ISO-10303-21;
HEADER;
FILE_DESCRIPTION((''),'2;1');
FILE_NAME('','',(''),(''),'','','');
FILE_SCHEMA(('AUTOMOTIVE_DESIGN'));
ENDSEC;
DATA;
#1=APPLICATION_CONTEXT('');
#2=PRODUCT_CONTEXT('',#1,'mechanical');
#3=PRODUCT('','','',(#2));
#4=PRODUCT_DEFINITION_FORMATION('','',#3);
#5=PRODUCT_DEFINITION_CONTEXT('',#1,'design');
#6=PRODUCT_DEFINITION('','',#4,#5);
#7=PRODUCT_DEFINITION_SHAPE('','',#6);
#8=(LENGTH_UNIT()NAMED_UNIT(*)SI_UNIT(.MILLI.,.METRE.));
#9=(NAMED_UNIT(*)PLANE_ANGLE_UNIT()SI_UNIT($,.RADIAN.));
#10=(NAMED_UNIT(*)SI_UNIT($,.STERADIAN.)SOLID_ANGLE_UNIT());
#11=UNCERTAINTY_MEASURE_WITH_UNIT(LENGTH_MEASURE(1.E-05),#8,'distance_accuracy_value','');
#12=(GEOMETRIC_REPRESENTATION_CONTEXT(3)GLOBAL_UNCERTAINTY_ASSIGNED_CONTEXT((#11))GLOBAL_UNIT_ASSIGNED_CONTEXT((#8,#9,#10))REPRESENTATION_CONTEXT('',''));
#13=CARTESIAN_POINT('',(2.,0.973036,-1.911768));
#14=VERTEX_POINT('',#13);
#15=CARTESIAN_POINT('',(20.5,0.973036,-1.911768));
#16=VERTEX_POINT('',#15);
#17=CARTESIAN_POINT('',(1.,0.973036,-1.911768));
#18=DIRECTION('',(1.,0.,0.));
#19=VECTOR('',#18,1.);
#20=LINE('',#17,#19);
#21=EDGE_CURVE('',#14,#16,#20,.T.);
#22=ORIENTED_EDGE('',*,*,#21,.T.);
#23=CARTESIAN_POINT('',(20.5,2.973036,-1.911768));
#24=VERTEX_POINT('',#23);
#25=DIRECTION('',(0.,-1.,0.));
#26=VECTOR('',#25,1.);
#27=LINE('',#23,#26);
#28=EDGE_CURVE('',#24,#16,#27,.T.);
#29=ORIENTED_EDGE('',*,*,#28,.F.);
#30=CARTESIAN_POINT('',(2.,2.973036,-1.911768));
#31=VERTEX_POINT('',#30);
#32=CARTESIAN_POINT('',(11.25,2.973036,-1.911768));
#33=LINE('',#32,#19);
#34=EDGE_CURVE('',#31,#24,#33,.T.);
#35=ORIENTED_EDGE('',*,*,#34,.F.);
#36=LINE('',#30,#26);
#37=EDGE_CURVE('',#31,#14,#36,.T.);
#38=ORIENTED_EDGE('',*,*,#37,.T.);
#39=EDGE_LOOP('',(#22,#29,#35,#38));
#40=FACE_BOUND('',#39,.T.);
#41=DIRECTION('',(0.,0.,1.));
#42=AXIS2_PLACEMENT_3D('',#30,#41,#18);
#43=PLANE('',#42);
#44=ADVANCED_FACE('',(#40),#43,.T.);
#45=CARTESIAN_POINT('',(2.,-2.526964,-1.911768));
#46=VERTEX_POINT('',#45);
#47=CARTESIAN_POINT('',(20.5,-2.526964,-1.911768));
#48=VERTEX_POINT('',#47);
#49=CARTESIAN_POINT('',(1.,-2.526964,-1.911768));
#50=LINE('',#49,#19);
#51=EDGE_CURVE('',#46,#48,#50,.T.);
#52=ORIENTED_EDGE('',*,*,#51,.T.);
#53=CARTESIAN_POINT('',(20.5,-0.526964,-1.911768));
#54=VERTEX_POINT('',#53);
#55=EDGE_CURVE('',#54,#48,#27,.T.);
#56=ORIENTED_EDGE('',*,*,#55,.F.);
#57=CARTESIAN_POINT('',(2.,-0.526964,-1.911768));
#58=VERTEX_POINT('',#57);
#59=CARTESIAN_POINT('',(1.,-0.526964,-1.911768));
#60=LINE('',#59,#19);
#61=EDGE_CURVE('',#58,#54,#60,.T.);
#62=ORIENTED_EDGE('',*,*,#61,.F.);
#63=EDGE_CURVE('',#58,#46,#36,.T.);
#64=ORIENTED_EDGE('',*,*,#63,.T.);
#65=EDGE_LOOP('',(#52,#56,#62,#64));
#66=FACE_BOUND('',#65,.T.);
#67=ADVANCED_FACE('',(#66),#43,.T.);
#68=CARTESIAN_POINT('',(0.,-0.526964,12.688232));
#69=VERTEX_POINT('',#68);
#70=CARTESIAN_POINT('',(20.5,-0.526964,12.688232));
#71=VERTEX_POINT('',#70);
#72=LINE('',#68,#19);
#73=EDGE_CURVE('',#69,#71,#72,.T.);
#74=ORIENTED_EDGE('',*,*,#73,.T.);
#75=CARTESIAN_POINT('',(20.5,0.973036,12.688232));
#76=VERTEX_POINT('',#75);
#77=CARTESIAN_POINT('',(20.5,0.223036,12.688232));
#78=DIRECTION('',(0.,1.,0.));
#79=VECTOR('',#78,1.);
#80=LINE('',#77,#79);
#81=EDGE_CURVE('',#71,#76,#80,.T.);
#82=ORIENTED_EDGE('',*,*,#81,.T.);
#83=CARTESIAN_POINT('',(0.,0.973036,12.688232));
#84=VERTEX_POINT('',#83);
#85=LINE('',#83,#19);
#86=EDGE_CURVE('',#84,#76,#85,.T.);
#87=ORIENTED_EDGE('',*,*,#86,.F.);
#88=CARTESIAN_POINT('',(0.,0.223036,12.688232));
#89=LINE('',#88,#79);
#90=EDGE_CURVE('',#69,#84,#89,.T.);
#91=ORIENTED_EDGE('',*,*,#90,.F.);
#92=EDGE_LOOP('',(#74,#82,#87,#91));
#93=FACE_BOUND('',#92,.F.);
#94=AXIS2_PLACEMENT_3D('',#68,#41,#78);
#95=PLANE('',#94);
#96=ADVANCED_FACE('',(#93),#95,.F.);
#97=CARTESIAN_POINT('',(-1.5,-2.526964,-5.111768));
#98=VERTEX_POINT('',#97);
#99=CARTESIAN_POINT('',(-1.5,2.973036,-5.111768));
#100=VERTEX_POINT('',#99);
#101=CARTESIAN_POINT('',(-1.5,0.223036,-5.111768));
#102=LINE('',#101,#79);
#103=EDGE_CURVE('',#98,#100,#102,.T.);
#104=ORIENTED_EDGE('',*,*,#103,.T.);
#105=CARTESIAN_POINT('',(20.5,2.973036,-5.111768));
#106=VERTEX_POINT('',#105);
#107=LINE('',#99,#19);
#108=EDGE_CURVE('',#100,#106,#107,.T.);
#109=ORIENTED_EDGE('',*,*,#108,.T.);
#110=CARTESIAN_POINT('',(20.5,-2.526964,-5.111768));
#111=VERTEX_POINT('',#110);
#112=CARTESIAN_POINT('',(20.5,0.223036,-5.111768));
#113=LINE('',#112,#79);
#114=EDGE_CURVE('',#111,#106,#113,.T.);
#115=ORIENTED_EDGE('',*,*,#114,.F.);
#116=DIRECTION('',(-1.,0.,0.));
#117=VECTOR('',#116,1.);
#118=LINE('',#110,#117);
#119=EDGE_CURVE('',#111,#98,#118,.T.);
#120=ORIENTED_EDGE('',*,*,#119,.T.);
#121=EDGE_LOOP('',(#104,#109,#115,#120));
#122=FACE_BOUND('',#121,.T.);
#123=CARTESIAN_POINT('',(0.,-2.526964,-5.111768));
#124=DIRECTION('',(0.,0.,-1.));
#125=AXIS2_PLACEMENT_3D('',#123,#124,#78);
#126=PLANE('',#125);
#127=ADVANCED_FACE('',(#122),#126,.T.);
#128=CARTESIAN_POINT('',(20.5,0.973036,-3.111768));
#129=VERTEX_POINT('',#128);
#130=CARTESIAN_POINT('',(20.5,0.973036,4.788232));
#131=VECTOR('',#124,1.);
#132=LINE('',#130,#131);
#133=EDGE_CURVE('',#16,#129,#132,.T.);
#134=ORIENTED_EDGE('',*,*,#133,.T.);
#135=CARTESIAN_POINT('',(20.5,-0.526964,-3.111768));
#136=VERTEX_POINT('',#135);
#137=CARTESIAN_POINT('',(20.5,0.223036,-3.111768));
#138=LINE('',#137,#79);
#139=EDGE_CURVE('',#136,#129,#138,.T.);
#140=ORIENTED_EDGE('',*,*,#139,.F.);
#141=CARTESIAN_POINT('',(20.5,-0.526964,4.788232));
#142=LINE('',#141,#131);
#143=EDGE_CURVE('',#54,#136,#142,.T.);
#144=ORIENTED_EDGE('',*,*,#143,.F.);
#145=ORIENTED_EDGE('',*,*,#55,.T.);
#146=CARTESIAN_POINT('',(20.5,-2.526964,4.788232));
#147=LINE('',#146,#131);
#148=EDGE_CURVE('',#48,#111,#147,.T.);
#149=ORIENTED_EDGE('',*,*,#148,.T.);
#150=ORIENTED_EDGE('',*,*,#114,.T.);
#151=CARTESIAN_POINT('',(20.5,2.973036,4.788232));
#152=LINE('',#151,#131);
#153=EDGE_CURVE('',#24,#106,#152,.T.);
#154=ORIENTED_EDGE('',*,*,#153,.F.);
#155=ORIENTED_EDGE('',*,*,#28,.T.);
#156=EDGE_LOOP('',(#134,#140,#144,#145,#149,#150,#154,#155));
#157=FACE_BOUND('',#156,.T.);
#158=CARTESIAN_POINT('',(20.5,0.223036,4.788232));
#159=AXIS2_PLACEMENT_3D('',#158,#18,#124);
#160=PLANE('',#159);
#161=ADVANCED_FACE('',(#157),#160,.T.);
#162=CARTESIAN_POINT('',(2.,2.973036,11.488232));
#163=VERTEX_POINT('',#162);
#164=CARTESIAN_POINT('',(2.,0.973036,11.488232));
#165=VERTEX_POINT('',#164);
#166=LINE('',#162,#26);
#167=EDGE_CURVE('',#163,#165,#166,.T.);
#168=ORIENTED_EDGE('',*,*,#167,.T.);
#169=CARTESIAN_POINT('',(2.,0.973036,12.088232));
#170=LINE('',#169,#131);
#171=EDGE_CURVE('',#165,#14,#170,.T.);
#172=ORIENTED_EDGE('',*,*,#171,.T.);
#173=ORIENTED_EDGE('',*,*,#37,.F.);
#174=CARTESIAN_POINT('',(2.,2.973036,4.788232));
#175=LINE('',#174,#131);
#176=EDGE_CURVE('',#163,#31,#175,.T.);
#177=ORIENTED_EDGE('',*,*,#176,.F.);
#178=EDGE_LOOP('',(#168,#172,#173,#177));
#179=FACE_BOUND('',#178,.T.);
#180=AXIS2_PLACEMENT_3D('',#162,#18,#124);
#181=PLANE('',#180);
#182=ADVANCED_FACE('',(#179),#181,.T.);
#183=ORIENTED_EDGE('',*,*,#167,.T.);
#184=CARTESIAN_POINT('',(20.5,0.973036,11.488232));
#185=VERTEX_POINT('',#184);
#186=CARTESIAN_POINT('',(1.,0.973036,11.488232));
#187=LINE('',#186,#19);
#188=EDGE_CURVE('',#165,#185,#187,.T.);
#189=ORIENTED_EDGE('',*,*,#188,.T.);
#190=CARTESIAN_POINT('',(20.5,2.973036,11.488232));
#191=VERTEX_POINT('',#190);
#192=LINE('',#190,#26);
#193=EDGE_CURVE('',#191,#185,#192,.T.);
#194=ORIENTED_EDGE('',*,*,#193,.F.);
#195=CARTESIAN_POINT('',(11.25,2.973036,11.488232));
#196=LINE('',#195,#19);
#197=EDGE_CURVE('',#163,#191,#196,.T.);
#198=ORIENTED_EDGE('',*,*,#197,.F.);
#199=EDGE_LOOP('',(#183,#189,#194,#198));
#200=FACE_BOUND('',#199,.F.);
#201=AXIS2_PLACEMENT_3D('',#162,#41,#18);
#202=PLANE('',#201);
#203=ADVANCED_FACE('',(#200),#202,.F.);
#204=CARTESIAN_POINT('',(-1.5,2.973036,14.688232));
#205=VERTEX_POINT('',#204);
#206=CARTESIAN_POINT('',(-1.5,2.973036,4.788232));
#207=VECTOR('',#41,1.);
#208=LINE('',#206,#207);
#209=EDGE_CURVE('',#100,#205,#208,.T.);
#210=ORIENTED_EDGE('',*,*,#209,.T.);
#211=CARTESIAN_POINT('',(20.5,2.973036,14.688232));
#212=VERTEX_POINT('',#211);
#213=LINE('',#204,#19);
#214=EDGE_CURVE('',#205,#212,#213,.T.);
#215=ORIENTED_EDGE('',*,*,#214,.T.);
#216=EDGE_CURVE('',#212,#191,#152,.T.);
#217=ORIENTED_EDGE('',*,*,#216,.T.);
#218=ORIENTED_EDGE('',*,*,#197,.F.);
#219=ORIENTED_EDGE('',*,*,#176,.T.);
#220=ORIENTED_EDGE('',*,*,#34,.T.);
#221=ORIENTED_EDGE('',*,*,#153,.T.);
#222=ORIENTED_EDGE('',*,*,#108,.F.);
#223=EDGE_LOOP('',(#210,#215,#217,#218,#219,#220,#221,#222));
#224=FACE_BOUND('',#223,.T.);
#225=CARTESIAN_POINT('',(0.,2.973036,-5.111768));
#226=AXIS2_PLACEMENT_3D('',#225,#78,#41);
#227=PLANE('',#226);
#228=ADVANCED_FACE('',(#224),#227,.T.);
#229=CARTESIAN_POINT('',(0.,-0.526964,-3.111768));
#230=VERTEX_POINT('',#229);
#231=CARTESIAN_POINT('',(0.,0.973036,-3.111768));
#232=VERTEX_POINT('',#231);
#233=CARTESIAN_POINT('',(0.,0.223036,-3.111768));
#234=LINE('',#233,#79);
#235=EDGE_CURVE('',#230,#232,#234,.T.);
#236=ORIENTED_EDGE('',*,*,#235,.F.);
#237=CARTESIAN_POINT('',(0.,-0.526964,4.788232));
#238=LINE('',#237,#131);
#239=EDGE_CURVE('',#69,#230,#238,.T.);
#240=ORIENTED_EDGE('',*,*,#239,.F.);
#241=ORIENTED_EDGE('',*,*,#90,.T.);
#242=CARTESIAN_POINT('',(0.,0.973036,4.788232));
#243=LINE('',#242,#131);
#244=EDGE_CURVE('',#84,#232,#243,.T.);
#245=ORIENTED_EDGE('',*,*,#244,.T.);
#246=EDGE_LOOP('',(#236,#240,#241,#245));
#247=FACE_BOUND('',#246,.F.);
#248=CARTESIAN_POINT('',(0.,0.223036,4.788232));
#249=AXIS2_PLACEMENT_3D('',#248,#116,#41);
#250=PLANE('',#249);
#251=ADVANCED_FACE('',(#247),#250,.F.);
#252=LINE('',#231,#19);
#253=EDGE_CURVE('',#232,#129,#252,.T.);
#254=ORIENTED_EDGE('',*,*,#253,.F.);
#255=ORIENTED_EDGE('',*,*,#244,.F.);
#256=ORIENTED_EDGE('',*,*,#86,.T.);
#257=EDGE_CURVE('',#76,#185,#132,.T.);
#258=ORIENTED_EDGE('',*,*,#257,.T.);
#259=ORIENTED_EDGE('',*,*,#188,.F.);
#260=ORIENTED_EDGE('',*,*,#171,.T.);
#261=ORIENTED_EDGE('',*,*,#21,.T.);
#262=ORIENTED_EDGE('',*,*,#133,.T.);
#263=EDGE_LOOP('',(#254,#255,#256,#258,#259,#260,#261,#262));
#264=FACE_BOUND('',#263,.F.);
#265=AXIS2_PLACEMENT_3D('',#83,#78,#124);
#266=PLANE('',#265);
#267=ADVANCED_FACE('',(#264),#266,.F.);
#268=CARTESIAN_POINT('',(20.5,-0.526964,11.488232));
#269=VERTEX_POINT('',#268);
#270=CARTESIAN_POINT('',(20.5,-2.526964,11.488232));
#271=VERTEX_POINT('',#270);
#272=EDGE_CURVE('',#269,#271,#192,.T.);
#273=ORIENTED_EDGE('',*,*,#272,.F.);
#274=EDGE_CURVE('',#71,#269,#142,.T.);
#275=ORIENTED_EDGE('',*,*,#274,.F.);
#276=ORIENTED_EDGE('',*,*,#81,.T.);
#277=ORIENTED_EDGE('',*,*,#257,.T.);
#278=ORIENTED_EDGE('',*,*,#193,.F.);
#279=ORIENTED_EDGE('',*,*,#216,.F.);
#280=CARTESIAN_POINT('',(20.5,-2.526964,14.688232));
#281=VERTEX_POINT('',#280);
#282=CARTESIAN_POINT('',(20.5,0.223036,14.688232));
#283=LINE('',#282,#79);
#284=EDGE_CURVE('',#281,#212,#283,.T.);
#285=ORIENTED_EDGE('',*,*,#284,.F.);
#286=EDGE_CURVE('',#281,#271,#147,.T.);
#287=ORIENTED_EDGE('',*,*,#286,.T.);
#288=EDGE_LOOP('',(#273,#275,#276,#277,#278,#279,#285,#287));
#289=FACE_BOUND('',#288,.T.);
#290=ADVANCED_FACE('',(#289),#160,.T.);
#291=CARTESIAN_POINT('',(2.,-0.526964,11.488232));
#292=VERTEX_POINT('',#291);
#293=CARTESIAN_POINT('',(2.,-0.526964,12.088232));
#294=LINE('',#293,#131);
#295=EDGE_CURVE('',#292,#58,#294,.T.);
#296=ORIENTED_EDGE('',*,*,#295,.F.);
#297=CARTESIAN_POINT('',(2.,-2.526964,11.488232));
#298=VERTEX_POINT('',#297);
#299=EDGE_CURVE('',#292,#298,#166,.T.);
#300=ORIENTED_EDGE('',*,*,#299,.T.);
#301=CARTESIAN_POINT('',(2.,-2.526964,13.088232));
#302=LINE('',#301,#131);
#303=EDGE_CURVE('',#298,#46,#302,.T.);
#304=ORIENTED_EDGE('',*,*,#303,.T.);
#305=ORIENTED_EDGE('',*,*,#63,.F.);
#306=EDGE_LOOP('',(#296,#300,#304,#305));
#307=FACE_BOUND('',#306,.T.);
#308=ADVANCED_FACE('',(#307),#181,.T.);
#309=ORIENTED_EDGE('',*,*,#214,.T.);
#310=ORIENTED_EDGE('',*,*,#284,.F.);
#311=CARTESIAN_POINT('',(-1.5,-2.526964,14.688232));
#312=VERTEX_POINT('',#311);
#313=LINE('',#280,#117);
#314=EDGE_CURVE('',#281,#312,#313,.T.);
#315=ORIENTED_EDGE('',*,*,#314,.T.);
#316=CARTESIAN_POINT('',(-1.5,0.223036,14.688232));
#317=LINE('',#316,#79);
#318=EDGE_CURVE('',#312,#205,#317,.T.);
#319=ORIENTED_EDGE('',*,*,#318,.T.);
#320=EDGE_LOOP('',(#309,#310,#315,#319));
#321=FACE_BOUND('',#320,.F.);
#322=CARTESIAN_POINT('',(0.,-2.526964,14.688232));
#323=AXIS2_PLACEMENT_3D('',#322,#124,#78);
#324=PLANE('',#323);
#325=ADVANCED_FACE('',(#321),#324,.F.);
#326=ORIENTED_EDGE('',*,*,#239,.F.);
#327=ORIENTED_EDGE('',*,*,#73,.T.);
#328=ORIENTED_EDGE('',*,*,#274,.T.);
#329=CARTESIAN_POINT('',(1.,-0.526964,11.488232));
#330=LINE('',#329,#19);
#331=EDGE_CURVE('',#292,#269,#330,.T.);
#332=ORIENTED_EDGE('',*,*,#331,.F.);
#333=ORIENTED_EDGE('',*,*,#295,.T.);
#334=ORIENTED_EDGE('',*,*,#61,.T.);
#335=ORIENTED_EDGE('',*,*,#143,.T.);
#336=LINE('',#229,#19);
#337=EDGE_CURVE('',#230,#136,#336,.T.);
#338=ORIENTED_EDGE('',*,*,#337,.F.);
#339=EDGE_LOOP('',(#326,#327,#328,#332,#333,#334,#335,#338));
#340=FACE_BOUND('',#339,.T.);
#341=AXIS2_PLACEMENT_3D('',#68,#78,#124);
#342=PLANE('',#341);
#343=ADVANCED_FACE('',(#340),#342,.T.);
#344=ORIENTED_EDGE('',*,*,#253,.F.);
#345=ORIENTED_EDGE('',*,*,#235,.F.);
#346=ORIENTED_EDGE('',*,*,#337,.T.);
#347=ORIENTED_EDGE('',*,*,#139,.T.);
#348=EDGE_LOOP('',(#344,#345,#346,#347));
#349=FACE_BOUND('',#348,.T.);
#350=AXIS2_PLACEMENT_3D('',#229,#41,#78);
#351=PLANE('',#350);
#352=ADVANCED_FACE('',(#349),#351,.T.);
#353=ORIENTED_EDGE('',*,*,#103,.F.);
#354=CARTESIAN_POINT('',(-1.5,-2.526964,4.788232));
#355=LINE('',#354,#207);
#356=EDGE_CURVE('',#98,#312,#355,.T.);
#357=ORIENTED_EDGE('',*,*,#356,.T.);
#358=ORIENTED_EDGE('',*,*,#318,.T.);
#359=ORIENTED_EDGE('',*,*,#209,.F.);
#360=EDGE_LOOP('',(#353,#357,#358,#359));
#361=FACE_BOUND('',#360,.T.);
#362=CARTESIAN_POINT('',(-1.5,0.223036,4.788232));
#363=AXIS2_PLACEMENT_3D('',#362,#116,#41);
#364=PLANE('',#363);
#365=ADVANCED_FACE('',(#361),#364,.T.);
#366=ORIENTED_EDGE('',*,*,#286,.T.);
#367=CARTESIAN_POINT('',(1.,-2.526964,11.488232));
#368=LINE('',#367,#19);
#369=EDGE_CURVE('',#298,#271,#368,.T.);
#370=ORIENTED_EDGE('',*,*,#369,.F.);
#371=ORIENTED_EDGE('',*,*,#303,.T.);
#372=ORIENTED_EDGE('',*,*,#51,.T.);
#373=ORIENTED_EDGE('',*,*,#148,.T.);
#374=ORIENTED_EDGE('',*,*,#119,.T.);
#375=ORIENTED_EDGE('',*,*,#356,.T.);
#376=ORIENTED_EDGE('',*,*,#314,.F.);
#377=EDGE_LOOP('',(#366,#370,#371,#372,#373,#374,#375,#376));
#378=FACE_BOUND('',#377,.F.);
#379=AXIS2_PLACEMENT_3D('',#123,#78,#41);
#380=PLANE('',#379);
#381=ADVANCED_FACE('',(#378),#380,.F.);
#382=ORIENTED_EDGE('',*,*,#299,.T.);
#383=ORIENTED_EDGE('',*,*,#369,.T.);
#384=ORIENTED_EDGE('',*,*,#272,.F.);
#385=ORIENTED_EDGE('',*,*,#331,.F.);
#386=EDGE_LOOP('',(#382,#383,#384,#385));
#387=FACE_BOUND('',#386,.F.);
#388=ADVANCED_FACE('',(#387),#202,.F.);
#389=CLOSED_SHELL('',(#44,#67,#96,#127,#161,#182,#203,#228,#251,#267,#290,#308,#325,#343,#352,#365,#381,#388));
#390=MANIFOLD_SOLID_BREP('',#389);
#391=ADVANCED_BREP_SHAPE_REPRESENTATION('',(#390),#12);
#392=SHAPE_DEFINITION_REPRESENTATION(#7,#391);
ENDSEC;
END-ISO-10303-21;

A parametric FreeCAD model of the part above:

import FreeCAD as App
import Part
import Sketcher

V = App.Vector
Q = App.Units.Quantity

doc = App.newDocument("Part")
body = doc.addObject("PartDesign::Body", "Body")

sketch1 = body.newObject("Sketcher::SketchObject", "Sketch")
sketch1.AttachmentSupport = (doc.getObject("YZ_Plane"), [""])
sketch1.MapMode = "FlatFace"
sketch1.addGeometry(Part.LineSegment(V(3, 14.7, 0), V(-2.5, 14.7, 0)), False)
sketch1.addGeometry(Part.LineSegment(V(-2.5, 14.7, 0), V(-2.5, -5.1, 0)), False)
sketch1.addGeometry(Part.LineSegment(V(-2.5, -5.1, 0), V(3, -5.1, 0)), False)
sketch1.addGeometry(Part.LineSegment(V(3, -5.1, 0), V(3, 14.7, 0)), False)
sketch1.addGeometry(Part.LineSegment(V(-0.5, -3.1, 0), V(-0.5, 12.7, 0)), False)
sketch1.addGeometry(Part.LineSegment(V(-0.5, 12.7, 0), V(1, 12.7, 0)), False)
sketch1.addGeometry(Part.LineSegment(V(1, 12.7, 0), V(1, -3.1, 0)), False)
sketch1.addGeometry(Part.LineSegment(V(1, -3.1, 0), V(-0.5, -3.1, 0)), False)
sketch1.addConstraint(Sketcher.Constraint("Coincident", 0, 2, 1, 1))
sketch1.addConstraint(Sketcher.Constraint("Coincident", 1, 2, 2, 1))
sketch1.addConstraint(Sketcher.Constraint("Coincident", 2, 2, 3, 1))
sketch1.addConstraint(Sketcher.Constraint("Coincident", 3, 2, 0, 1))
sketch1.addConstraint(Sketcher.Constraint("Coincident", 4, 2, 5, 1))
sketch1.addConstraint(Sketcher.Constraint("Coincident", 5, 2, 6, 1))
sketch1.addConstraint(Sketcher.Constraint("Coincident", 6, 2, 7, 1))
sketch1.addConstraint(Sketcher.Constraint("Coincident", 7, 2, 4, 1))
sketch1.addConstraint(Sketcher.Constraint("Horizontal", 0))
sketch1.addConstraint(Sketcher.Constraint("Vertical", 1))
sketch1.addConstraint(Sketcher.Constraint("Horizontal", 2))
sketch1.addConstraint(Sketcher.Constraint("Vertical", 3))
sketch1.addConstraint(Sketcher.Constraint("Vertical", 4))
sketch1.addConstraint(Sketcher.Constraint("Horizontal", 5))
sketch1.addConstraint(Sketcher.Constraint("Vertical", 6))
sketch1.addConstraint(Sketcher.Constraint("Horizontal", 7))
sketch1.addConstraint(Sketcher.Constraint("DistanceX", 0, 2, 0, 1, Q("5.5 mm")))
sketch1.addConstraint(Sketcher.Constraint("DistanceX", 5, 1, 5, 2, Q("1.5 mm")))
sketch1.addConstraint(Sketcher.Constraint("DistanceY", 1, 2, 1, 1, Q("19.8 mm")))
sketch1.addConstraint(Sketcher.Constraint("DistanceY", 4, 1, 4, 2, Q("15.8 mm")))
sketch1.addConstraint(Sketcher.Constraint("DistanceX", 0, 2, 4, 2, Q("2 mm")))
sketch1.addConstraint(Sketcher.Constraint("DistanceY", 4, 2, 0, 2, Q("2 mm")))
sketch1.addConstraint(Sketcher.Constraint("DistanceY", -1, 1, 0, 2, Q("14.688232 mm")))
sketch1.addConstraint(Sketcher.Constraint("DistanceX", 0, 2, -1, 1, Q("2.526964 mm")))
pad1 = body.newObject("PartDesign::Pad", "Pad")
pad1.Profile = sketch1
pad1.Length = 20.5

sketch2 = body.newObject("Sketcher::SketchObject", "Sketch001")
sketch2.AttachmentSupport = (doc.getObject("XZ_Plane"), [""])
sketch2.MapMode = "FlatFace"
sketch2.AttachmentOffset = App.Placement(V(0, 0, -2.973036), App.Rotation())
sketch2.addGeometry(Part.LineSegment(V(2, -2, 0), V(2, 11, 0)), False)
sketch2.addGeometry(Part.LineSegment(V(2, 11, 0), V(20, 11, 0)), False)
sketch2.addGeometry(Part.LineSegment(V(20, 11, 0), V(20, -2, 0)), False)
sketch2.addGeometry(Part.LineSegment(V(20, -2, 0), V(2, -2, 0)), False)
sketch2.addConstraint(Sketcher.Constraint("Coincident", 0, 2, 1, 1))
sketch2.addConstraint(Sketcher.Constraint("Coincident", 1, 2, 2, 1))
sketch2.addConstraint(Sketcher.Constraint("Coincident", 2, 2, 3, 1))
sketch2.addConstraint(Sketcher.Constraint("Coincident", 3, 2, 0, 1))
sketch2.addConstraint(Sketcher.Constraint("Vertical", 0))
sketch2.addConstraint(Sketcher.Constraint("Horizontal", 1))
sketch2.addConstraint(Sketcher.Constraint("Vertical", 2))
sketch2.addConstraint(Sketcher.Constraint("Horizontal", 3))
sketch2.addConstraint(Sketcher.Constraint("DistanceX", 1, 1, 1, 2, Q("18.5 mm")))
sketch2.addConstraint(Sketcher.Constraint("DistanceY", 0, 1, 0, 2, Q("13.4 mm")))
sketch2.addConstraint(Sketcher.Constraint("DistanceX", -1, 1, 0, 2, Q("2 mm")))
sketch2.addConstraint(Sketcher.Constraint("DistanceY", -1, 1, 0, 2, Q("11.488232 mm")))
pocket1 = body.newObject("PartDesign::Pocket", "Pocket")
pocket1.Profile = sketch2
pocket1.Type = "ThroughAll"
pocket1.Reversed = True

sketch3 = body.newObject("Sketcher::SketchObject", "Sketch002")
sketch3.AttachmentSupport = (doc.getObject("YZ_Plane"), [""])
sketch3.MapMode = "FlatFace"
sketch3.addGeometry(Part.LineSegment(V(3, -5, 0), V(-3, -5, 0)), False)
sketch3.addGeometry(Part.LineSegment(V(-3, -5, 0), V(-3, 15, 0)), False)
sketch3.addGeometry(Part.LineSegment(V(-3, 15, 0), V(3, 15, 0)), False)
sketch3.addGeometry(Part.LineSegment(V(3, 15, 0), V(3, -5, 0)), False)
sketch3.addConstraint(Sketcher.Constraint("Coincident", 0, 2, 1, 1))
sketch3.addConstraint(Sketcher.Constraint("Coincident", 1, 2, 2, 1))
sketch3.addConstraint(Sketcher.Constraint("Coincident", 2, 2, 3, 1))
sketch3.addConstraint(Sketcher.Constraint("Coincident", 3, 2, 0, 1))
sketch3.addConstraint(Sketcher.Constraint("Horizontal", 0))
sketch3.addConstraint(Sketcher.Constraint("Vertical", 1))
sketch3.addConstraint(Sketcher.Constraint("Horizontal", 2))
sketch3.addConstraint(Sketcher.Constraint("Vertical", 3))
sketch3.addConstraint(Sketcher.Constraint("DistanceX", 0, 2, 0, 1, Q("5.5 mm")))
sketch3.addConstraint(Sketcher.Constraint("DistanceY", 1, 1, 1, 2, Q("19.8 mm")))
sketch3.addConstraint(Sketcher.Constraint("DistanceY", 0, 2, -1, 1, Q("5.111768 mm")))
sketch3.addConstraint(Sketcher.Constraint("DistanceX", 0, 2, -1, 1, Q("2.526964 mm")))
pad2 = body.newObject("PartDesign::Pad", "Pad001")
pad2.Profile = sketch3
pad2.Length = 1.5
pad2.Reversed = True

doc.recompute()
